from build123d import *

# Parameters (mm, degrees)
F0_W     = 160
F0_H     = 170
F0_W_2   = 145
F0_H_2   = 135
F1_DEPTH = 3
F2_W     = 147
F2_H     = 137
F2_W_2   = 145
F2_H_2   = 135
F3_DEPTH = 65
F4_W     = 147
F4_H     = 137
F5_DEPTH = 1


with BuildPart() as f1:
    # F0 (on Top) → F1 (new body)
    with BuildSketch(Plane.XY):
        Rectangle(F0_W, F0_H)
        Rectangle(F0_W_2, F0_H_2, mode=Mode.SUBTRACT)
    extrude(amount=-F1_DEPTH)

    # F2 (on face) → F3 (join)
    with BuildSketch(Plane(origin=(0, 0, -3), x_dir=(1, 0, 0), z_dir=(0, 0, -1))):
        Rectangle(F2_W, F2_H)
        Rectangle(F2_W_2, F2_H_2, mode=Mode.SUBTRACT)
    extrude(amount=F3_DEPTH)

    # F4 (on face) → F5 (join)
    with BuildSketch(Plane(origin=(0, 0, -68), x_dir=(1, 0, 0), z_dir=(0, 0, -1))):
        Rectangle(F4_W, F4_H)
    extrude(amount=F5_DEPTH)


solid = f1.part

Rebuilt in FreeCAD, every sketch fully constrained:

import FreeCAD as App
import Part
import Sketcher

V = App.Vector
Q = App.Units.Quantity


def add_polygon(sketch, points):
    """Adds a closed chain of lines whose ends are joined by coincident constraints."""
    first, n = sketch.GeometryCount, len(points)
    for a, b in zip(points, points[1:] + points[:1]):
        sketch.addGeometry(Part.LineSegment(App.Vector(*a, 0), App.Vector(*b, 0)), False)
    for i in range(n):
        sketch.addConstraint(Sketcher.Constraint("Coincident", first + i, 2, first + (i + 1) % n, 1))

doc = App.newDocument("Part")
body = doc.addObject("PartDesign::Body", "Body")

# Sketch on XY plane
sketch1 = body.newObject("Sketcher::SketchObject", "Sketch")
sketch1.AttachmentSupport = (doc.getObject("XY_Plane"), [""])
sketch1.MapMode = "FlatFace"
add_polygon(sketch1, [(-80, 85), (-80, -85), (80, -85), (80, 85)])  # lines 0-3
add_polygon(sketch1, [(72, -68), (-72, -68), (-72, 68), (72, 68)])  # lines 4-7
sketch1.addConstraint([
    Sketcher.Constraint("Vertical", 0),
    Sketcher.Constraint("Horizontal", 1),
    Sketcher.Constraint("Vertical", 2),
    Sketcher.Constraint("Horizontal", 3),
    Sketcher.Constraint("Horizontal", 4),
    Sketcher.Constraint("Vertical", 5),
    Sketcher.Constraint("Horizontal", 6),
    Sketcher.Constraint("Vertical", 7),
    Sketcher.Constraint("Symmetric", 0, 2, 2, 2, -1, 1),
    Sketcher.Constraint("Symmetric", 4, 2, 6, 2, -1, 1),
    Sketcher.Constraint("DistanceX", 1, 1, 1, 2, Q("160 mm")),
    Sketcher.Constraint("DistanceX", 4, 2, 4, 1, Q("145 mm")),
    Sketcher.Constraint("DistanceY", 0, 2, 0, 1, Q("170 mm")),
    Sketcher.Constraint("DistanceY", 5, 1, 5, 2, Q("135 mm")),
])
pad1 = body.newObject("PartDesign::Pad", "Pad")
pad1.Profile = sketch1
pad1.Length = 3
pad1.Reversed = True

# Sketch on XY plane
sketch2 = body.newObject("Sketcher::SketchObject", "Sketch001")
sketch2.AttachmentSupport = (doc.getObject("XY_Plane"), [""])
sketch2.MapMode = "FlatFace"
sketch2.AttachmentOffset = App.Placement(V(0, 0, -3), App.Rotation())
add_polygon(sketch2, [(-74, -68), (-74, 68), (74, 68), (74, -68)])  # lines 0-3
add_polygon(sketch2, [(72, 68), (-72, 68), (-72, -68), (72, -68)])  # lines 4-7
sketch2.addConstraint([
    Sketcher.Constraint("Vertical", 0),
    Sketcher.Constraint("Horizontal", 1),
    Sketcher.Constraint("Vertical", 2),
    Sketcher.Constraint("Horizontal", 3),
    Sketcher.Constraint("Horizontal", 4),
    Sketcher.Constraint("Vertical", 5),
    Sketcher.Constraint("Horizontal", 6),
    Sketcher.Constraint("Vertical", 7),
    Sketcher.Constraint("Symmetric", 0, 2, 2, 2, -1, 1),
    Sketcher.Constraint("Symmetric", 4, 2, 6, 2, -1, 1),
    Sketcher.Constraint("DistanceX", 1, 1, 1, 2, Q("147 mm")),
    Sketcher.Constraint("DistanceX", 4, 2, 4, 1, Q("145 mm")),
    Sketcher.Constraint("DistanceY", 0, 1, 0, 2, Q("137 mm")),
    Sketcher.Constraint("DistanceY", 5, 2, 5, 1, Q("135 mm")),
])
pad2 = body.newObject("PartDesign::Pad", "Pad001")
pad2.Profile = sketch2
pad2.Length = 65
pad2.Reversed = True

# Sketch on XY plane
sketch3 = body.newObject("Sketcher::SketchObject", "Sketch002")
sketch3.AttachmentSupport = (doc.getObject("XY_Plane"), [""])
sketch3.MapMode = "FlatFace"
sketch3.AttachmentOffset = App.Placement(V(0, 0, -68), App.Rotation())
add_polygon(sketch3, [(-74, -68), (-74, 68), (74, 68), (74, -68)])  # lines 0-3
sketch3.addConstraint([
    Sketcher.Constraint("Vertical", 0),
    Sketcher.Constraint("Horizontal", 1),
    Sketcher.Constraint("Vertical", 2),
    Sketcher.Constraint("Horizontal", 3),
    Sketcher.Constraint("Symmetric", 0, 2, 2, 2, -1, 1),
    Sketcher.Constraint("DistanceX", 1, 1, 1, 2, Q("147 mm")),
    Sketcher.Constraint("DistanceY", 0, 1, 0, 2, Q("137 mm")),
])
pad3 = body.newObject("PartDesign::Pad", "Pad002")
pad3.Profile = sketch3
pad3.Length = 1
pad3.Reversed = True

doc.recompute()
